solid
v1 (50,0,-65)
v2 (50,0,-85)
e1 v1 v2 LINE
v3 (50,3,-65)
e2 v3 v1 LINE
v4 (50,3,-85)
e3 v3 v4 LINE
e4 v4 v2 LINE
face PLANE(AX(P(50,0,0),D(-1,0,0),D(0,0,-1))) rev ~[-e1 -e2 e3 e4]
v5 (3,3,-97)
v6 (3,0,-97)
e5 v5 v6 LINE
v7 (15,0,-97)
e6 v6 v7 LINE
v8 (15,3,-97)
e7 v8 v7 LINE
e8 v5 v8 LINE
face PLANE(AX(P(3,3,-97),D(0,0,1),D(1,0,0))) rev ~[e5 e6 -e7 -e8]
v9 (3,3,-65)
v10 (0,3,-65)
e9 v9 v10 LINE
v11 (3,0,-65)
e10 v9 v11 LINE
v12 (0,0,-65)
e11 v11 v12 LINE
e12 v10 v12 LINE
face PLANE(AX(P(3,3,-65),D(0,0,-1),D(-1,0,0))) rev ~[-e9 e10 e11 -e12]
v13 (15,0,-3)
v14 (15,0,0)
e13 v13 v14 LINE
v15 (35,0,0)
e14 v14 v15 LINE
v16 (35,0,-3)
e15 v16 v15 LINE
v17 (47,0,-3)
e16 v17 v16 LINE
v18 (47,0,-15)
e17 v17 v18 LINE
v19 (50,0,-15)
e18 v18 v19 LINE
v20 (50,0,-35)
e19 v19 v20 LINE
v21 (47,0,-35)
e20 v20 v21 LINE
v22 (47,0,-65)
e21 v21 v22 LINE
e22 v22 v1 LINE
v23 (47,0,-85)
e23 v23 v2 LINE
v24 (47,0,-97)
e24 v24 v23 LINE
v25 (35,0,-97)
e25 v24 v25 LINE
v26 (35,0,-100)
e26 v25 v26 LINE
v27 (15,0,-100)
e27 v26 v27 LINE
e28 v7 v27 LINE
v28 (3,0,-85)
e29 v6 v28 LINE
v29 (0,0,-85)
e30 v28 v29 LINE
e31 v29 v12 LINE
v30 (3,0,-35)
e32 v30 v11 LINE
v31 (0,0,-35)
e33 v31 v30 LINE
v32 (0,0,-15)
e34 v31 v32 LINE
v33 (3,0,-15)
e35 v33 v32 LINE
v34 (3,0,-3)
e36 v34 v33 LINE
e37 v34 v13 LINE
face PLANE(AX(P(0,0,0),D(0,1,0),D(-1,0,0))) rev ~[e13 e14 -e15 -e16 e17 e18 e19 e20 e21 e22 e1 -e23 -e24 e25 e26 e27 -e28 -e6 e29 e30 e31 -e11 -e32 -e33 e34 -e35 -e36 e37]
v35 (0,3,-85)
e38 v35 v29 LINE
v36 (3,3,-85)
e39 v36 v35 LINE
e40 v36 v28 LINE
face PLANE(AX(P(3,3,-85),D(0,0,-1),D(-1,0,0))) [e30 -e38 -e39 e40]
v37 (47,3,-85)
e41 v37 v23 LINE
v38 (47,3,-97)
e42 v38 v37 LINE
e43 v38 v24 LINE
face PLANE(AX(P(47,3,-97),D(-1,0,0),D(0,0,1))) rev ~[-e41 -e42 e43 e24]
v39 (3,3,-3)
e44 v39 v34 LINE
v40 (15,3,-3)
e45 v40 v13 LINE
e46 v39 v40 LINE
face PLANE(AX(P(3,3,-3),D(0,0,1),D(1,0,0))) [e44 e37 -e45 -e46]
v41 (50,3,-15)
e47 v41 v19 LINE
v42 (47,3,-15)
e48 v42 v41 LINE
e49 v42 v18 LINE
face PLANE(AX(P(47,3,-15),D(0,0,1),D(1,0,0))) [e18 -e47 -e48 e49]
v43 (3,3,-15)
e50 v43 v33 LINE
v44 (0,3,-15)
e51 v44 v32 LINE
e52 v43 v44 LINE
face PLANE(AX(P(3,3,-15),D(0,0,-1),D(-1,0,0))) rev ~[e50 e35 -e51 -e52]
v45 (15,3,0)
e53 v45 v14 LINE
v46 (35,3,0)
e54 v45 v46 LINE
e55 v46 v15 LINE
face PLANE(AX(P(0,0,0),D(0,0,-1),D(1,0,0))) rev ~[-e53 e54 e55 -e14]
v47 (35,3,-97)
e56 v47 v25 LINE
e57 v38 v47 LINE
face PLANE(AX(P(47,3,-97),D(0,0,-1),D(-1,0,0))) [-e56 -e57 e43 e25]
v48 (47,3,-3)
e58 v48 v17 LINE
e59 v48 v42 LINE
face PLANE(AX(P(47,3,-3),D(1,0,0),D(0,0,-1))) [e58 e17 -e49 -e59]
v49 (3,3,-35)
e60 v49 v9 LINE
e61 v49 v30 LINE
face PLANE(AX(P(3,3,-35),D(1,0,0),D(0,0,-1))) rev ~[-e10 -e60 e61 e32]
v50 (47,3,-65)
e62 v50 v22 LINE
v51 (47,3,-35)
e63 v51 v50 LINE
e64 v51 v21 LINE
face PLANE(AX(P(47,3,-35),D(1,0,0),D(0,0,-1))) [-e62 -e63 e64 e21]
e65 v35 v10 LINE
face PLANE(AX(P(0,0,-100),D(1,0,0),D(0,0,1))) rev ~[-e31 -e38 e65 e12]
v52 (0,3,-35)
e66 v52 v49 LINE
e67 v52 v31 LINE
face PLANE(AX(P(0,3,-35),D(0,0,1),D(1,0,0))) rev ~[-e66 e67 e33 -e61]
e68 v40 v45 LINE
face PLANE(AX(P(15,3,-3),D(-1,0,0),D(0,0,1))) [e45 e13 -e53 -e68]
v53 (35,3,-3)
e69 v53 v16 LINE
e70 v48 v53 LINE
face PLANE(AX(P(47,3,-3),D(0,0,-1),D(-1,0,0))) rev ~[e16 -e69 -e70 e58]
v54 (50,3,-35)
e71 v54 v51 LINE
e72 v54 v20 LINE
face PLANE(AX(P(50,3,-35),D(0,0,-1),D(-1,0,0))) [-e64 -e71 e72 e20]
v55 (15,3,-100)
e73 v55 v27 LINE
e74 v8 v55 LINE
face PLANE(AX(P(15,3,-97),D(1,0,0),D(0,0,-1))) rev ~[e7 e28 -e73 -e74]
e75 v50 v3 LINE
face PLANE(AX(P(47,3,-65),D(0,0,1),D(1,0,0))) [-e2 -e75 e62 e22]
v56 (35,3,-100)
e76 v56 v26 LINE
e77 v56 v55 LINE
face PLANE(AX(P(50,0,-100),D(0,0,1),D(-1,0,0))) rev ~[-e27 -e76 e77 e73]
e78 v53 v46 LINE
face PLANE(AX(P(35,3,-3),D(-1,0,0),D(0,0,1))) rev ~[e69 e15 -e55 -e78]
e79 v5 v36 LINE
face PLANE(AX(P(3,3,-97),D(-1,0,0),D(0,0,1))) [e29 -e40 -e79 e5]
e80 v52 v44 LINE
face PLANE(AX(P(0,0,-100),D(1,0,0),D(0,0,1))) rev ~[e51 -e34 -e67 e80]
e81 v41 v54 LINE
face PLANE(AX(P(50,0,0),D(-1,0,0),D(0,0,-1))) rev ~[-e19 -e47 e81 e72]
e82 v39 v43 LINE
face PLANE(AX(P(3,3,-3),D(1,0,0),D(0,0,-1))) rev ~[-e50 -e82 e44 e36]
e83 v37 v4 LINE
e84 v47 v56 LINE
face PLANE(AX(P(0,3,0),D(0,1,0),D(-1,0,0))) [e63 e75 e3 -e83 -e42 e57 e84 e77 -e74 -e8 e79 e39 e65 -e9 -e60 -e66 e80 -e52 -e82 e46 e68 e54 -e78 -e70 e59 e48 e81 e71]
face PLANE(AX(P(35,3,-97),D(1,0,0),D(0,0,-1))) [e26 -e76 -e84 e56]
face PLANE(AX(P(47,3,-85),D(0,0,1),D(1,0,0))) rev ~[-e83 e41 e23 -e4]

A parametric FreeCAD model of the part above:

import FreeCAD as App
import Part
import Sketcher
Q = App.Units.Quantity


def add_polygon(sketch, points):
    """Adds a closed chain of lines whose ends are joined by coincident constraints."""
    first, n = sketch.GeometryCount, len(points)
    for a, b in zip(points, points[1:] + points[:1]):
        sketch.addGeometry(Part.LineSegment(App.Vector(*a, 0), App.Vector(*b, 0)), False)
    for i in range(n):
        sketch.addConstraint(Sketcher.Constraint("Coincident", first + i, 2, first + (i + 1) % n, 1))

doc = App.newDocument("Part")
params = doc.addObject("Spreadsheet::Sheet", "Params")
for row, (alias, value) in enumerate([
    ("sketch1_width", "50 mm"),
    ("sketch1_height", "100 mm"),
    ("pad1_length", "3 mm"),
    ("sketch2_width", "15 mm"),
    ("sketch2_width2", "3 mm"),
    ("sketch2_height", "30 mm"),
], start=1):
    params.set(f"A{row}", alias)
    params.set(f"B{row}", "=" + value)
    params.setAlias(f"B{row}", alias)

body = doc.addObject("PartDesign::Body", "Body")

sketch1 = body.newObject("Sketcher::SketchObject", "Sketch")
sketch1.AttachmentSupport = (doc.getObject("XZ_Plane"), [""])
sketch1.MapMode = "FlatFace"
add_polygon(sketch1, [(0, -100), (0, 0), (50, 0), (50, -100)])
sketch1.addConstraint([
    Sketcher.Constraint("Vertical", 0),
    Sketcher.Constraint("Horizontal", 1),
    Sketcher.Constraint("Vertical", 2),
    Sketcher.Constraint("Horizontal", 3),
    Sketcher.Constraint("Coincident", 0, 2, -1, 1),
    Sketcher.Constraint("DistanceX", 1, 1, 1, 2, Q("50 mm")),
    Sketcher.Constraint("DistanceY", 0, 1, 0, 2, Q("100 mm")),
])
sketch1.setExpression("Constraints[9]", "Params.sketch1_width")
sketch1.setExpression("Constraints[10]", "Params.sketch1_height")
pad1 = body.newObject("PartDesign::Pad", "Pad")
pad1.Profile = sketch1
pad1.setExpression("Length", "Params.pad1_length")
pad1.Reversed = True

sketch2 = body.newObject("Sketcher::SketchObject", "Sketch001")
sketch2.AttachmentSupport = (doc.getObject("XZ_Plane"), [""])
sketch2.MapMode = "FlatFace"
sketch2.AttachmentOffset = App.Placement(App.Vector(0, 0, -3), App.Rotation())
add_polygon(sketch2, [(0, -15), (0, 0), (15, 0), (15, -3), (3, -3), (3, -15)])
add_polygon(sketch2, [(0, -65), (0, -35), (3, -35), (3, -65)])
add_polygon(sketch2, [(35, -3), (35, 0), (50, 0), (50, -15), (47, -15), (47, -3)])
add_polygon(sketch2, [(0, -100), (0, -85), (3, -85), (3, -97), (15, -97), (15, -100)])
add_polygon(sketch2, [(47, -35), (50, -35), (50, -65), (47, -65)])
add_polygon(sketch2, [(35, -100), (35, -97), (47, -97), (47, -85), (50, -85), (50, -100)])
sketch2.addConstraint([
    Sketcher.Constraint("Vertical", 0),
    Sketcher.Constraint("Horizontal", 1),
    Sketcher.Constraint("Vertical", 2),
    Sketcher.Constraint("Horizontal", 3),
    Sketcher.Constraint("Vertical", 4),
    Sketcher.Constraint("Horizontal", 5),
    Sketcher.Constraint("Vertical", 6),
    Sketcher.Constraint("Horizontal", 7),
    Sketcher.Constraint("Vertical", 8),
    Sketcher.Constraint("Horizontal", 9),
    Sketcher.Constraint("Vertical", 10),
    Sketcher.Constraint("Horizontal", 11),
    Sketcher.Constraint("Vertical", 12),
    Sketcher.Constraint("Horizontal", 13),
    Sketcher.Constraint("Vertical", 14),
    Sketcher.Constraint("Horizontal", 15),
    Sketcher.Constraint("Vertical", 16),
    Sketcher.Constraint("Horizontal", 17),
    Sketcher.Constraint("Vertical", 18),
    Sketcher.Constraint("Horizontal", 19),
    Sketcher.Constraint("Vertical", 20),
    Sketcher.Constraint("Horizontal", 21),
    Sketcher.Constraint("Horizontal", 22),
    Sketcher.Constraint("Vertical", 23),
    Sketcher.Constraint("Horizontal", 24),
    Sketcher.Constraint("Vertical", 25),
    Sketcher.Constraint("Vertical", 26),
    Sketcher.Constraint("Horizontal", 27),
    Sketcher.Constraint("Vertical", 28),
    Sketcher.Constraint("Horizontal", 29),
    Sketcher.Constraint("Vertical", 30),
    Sketcher.Constraint("Horizontal", 31),
    Sketcher.Constraint("Coincident", 0, 2, -1, 1),
    Sketcher.Constraint("PointOnObject", 6, 2, -2),
    Sketcher.Constraint("PointOnObject", 10, 2, -1),
    Sketcher.Constraint("PointOnObject", 16, 2, -2),
    Sketcher.Constraint("Horizontal", 5, 2, 12, 2),
    Sketcher.Constraint("Horizontal", 3, 2, 14, 2),
    Sketcher.Constraint("Horizontal", 7, 2, 22, 2),
    Sketcher.Constraint("Horizontal", 9, 2, 23, 2),
    Sketcher.Constraint("Horizontal", 19, 2, 26, 2),
    Sketcher.Constraint("Horizontal", 17, 2, 28, 2),
    Sketcher.Constraint("Horizontal", 21, 2, 30, 2),
    Sketcher.Constraint("Vertical", 4, 2, 7, 2),
    Sketcher.Constraint("Vertical", 8, 2, 17, 2),
    Sketcher.Constraint("Vertical", 2, 2, 19, 2),
    Sketcher.Constraint("Vertical", 12, 2, 22, 2),
    Sketcher.Constraint("Vertical", 14, 2, 24, 2),
    Sketcher.Constraint("Vertical", 15, 2, 26, 2),
    Sketcher.Constraint("Vertical", 25, 2, 27, 2),
    Sketcher.Constraint("Vertical", 23, 2, 29, 2),
    Sketcher.Constraint("Equal", 1, 11),
    Sketcher.Constraint("Equal", 9, 13),
    Sketcher.Constraint("Equal", 31, 0),
    Sketcher.Constraint("Equal", 29, 2),
    Sketcher.Constraint("Equal", 12, 16),
    Sketcher.Constraint("Equal", 14, 18),
    Sketcher.Constraint("DistanceX", 1, 1, 1, 2, Q("15 mm")),
    Sketcher.Constraint("DistanceX", 5, 2, 5, 1, Q("3 mm")),
    Sketcher.Constraint("DistanceY", 6, 1, 6, 2, Q("30 mm")),
    Sketcher.Constraint("DistanceY", 6, 2, 5, 2, Q("20 mm")),
    Sketcher.Constraint("DistanceX", 1, 2, 10, 2, Q("20 mm")),
    Sketcher.Constraint("DistanceY", 16, 2, 9, 2, Q("20 mm")),
])
sketch2.setExpression("Constraints[89]", "Params.sketch2_width")
sketch2.setExpression("Constraints[90]", "Params.sketch2_width2")
sketch2.setExpression("Constraints[91]", "Params.sketch2_height")
pocket1 = body.newObject("PartDesign::Pocket", "Pocket")
pocket1.Profile = sketch2
pocket1.Type = "ThroughAll"
pocket1.Reversed = True

doc.recompute()
